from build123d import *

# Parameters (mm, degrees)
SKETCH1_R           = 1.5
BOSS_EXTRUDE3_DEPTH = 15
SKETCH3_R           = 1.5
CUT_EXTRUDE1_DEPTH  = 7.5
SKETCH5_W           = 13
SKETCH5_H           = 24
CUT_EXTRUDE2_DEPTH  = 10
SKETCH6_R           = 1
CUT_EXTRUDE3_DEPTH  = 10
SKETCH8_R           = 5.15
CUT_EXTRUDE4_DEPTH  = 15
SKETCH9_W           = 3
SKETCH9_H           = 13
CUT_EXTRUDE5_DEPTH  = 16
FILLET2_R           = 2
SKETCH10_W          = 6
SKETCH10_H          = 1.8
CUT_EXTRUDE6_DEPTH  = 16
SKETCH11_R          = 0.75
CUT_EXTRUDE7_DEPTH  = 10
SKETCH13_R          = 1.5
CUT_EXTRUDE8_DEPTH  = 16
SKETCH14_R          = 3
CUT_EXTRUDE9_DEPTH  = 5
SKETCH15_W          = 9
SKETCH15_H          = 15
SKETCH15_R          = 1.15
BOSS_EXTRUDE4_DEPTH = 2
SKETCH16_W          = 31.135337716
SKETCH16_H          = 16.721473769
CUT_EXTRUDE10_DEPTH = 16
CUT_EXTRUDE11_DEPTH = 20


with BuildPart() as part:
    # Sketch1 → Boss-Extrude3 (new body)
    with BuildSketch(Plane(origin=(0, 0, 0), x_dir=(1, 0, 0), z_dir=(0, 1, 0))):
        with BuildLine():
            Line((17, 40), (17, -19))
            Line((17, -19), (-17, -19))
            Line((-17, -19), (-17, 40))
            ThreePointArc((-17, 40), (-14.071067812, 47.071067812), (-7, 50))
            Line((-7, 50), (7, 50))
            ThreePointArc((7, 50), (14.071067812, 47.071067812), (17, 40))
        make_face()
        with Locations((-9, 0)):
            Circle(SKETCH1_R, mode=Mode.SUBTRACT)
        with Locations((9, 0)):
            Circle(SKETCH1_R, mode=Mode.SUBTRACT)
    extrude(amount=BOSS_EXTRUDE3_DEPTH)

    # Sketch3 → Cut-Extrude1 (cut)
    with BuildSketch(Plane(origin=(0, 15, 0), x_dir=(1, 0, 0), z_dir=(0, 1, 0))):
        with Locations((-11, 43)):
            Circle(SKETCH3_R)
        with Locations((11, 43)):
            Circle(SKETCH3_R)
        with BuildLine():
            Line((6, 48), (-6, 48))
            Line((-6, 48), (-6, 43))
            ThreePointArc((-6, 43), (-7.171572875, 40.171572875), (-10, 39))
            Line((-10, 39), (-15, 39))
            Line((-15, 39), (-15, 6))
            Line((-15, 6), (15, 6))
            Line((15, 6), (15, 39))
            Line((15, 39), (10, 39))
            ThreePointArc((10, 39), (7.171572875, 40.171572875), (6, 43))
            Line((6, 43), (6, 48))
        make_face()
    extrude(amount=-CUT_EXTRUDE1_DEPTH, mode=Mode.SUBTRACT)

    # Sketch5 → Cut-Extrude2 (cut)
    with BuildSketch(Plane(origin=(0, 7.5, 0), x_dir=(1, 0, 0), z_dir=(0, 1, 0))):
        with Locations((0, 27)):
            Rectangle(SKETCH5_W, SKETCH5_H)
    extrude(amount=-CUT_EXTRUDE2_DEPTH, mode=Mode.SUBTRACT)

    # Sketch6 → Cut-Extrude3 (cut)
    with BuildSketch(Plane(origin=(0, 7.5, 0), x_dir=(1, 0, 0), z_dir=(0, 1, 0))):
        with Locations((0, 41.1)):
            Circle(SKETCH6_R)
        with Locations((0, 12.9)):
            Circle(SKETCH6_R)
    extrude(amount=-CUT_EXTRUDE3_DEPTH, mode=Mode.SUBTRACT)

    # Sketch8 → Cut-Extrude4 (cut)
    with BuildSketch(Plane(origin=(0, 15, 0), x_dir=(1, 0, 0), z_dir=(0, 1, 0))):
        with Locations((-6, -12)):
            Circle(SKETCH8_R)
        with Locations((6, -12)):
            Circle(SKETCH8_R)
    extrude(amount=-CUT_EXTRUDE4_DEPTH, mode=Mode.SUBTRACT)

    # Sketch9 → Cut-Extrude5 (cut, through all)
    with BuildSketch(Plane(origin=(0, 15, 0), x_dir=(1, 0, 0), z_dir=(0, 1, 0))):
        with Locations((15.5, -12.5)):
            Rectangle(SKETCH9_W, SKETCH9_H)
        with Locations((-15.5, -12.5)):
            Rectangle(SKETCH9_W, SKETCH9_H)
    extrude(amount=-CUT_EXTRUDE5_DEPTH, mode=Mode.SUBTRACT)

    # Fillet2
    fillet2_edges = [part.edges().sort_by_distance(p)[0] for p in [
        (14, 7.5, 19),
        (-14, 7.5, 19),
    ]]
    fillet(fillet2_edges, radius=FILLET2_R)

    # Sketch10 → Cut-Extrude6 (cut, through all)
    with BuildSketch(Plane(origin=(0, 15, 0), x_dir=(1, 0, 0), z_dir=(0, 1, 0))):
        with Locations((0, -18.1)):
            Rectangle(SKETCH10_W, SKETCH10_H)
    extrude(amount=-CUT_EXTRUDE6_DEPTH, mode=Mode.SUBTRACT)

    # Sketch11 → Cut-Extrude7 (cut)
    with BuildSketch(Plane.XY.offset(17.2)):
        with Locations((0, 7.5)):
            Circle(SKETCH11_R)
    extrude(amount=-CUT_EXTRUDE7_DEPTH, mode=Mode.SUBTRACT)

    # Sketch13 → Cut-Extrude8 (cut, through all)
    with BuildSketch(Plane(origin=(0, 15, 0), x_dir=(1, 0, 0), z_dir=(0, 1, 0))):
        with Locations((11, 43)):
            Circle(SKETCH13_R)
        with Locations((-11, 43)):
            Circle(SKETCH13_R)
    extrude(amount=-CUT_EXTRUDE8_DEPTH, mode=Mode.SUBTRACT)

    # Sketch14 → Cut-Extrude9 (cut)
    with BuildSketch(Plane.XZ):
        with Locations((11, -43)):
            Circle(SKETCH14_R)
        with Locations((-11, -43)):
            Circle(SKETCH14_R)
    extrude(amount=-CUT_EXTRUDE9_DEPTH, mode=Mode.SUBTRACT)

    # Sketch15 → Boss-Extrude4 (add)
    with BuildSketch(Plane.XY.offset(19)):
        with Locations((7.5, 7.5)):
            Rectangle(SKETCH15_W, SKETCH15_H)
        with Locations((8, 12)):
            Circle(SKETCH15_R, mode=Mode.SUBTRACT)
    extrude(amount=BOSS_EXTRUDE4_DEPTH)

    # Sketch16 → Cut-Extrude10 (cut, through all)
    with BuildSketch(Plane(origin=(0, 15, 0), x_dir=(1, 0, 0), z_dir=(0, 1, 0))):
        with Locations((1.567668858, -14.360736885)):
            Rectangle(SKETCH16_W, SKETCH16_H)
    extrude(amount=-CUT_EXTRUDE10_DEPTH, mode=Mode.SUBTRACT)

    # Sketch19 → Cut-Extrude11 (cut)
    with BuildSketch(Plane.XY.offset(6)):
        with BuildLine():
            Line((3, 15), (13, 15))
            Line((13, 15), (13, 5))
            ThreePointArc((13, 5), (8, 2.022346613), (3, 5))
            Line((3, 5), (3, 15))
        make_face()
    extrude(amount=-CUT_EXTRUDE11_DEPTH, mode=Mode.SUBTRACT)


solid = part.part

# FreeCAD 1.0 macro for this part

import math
import FreeCAD as App
import Part
import Sketcher
Q = App.Units.Quantity


def edges_at(feature, points):
    """Names of the edges that pass closest to the given points."""
    edges = feature.Shape.Edges
    near = lambda p: min(range(len(edges)), key=lambda i: edges[i].distToShape(Part.Vertex(*p))[0])
    return sorted({f"Edge{near(p) + 1}" for p in points})


def add_polygon(sketch, points):
    """Adds a closed chain of lines whose ends are joined by coincident constraints."""
    first, n = sketch.GeometryCount, len(points)
    for a, b in zip(points, points[1:] + points[:1]):
        sketch.addGeometry(Part.LineSegment(App.Vector(*a, 0), App.Vector(*b, 0)), False)
    for i in range(n):
        sketch.addConstraint(Sketcher.Constraint("Coincident", first + i, 2, first + (i + 1) % n, 1))

doc = App.newDocument("Part")
body = doc.addObject("PartDesign::Body", "Body")

# Sketch on XZ plane
sketch1 = body.newObject("Sketcher::SketchObject", "Sketch")
sketch1.AttachmentSupport = (doc.getObject("XZ_Plane"), [""])
sketch1.MapMode = "FlatFace"
sketch1.addGeometry(Part.LineSegment(App.Vector(17, 19, 0), App.Vector(17, -40, 0)), False)
sketch1.addGeometry(Part.ArcOfCircle(Part.Circle(App.Vector(7, -40, 0), App.Vector(0, 0, 1), 10), math.radians(-90), math.radians(0)), False)
sketch1.addGeometry(Part.LineSegment(App.Vector(7, -50, 0), App.Vector(-7, -50, 0)), False)
sketch1.addGeometry(Part.ArcOfCircle(Part.Circle(App.Vector(-7, -40, 0), App.Vector(0, 0, 1), 10), math.radians(180), math.radians(270)), False)
sketch1.addGeometry(Part.LineSegment(App.Vector(-17, -40, 0), App.Vector(-17, 19, 0)), False)
sketch1.addGeometry(Part.LineSegment(App.Vector(-17, 19, 0), App.Vector(17, 19, 0)), False)
sketch1.addGeometry(Part.Circle(App.Vector(9, 0, 0), App.Vector(0, 0, 1), 1.5), False)
sketch1.addGeometry(Part.Circle(App.Vector(-9, 0, 0), App.Vector(0, 0, 1), 1.5), False)
sketch1.addConstraint(Sketcher.Constraint("Tangent", 0, 2, 1, 2))
sketch1.addConstraint(Sketcher.Constraint("Tangent", 1, 1, 2, 1))
sketch1.addConstraint(Sketcher.Constraint("Tangent", 2, 2, 3, 2))
sketch1.addConstraint(Sketcher.Constraint("Tangent", 3, 1, 4, 1))
sketch1.addConstraint(Sketcher.Constraint("Coincident", 4, 2, 5, 1))
sketch1.addConstraint(Sketcher.Constraint("Coincident", 5, 2, 0, 1))
sketch1.addConstraint(Sketcher.Constraint("Vertical", 0))
sketch1.addConstraint(Sketcher.Constraint("Horizontal", 2))
sketch1.addConstraint(Sketcher.Constraint("Vertical", 4))
sketch1.addConstraint(Sketcher.Constraint("Horizontal", 5))
sketch1.addConstraint(Sketcher.Constraint("Equal", 1, 3))
sketch1.addConstraint(Sketcher.Constraint("Equal", 6, 7))
sketch1.addConstraint(Sketcher.Constraint("Symmetric", 6, 3, 7, 3, -1, 1))
sketch1.addConstraint(Sketcher.Constraint("PointOnObject", 6, 3, -1))
sketch1.addConstraint(Sketcher.Constraint("Diameter", 6, Q("3 mm")))
sketch1.addConstraint(Sketcher.Constraint("Radius", 1, Q("10 mm")))
sketch1.addConstraint(Sketcher.Constraint("DistanceX", 2, 2, 2, 1, Q("14 mm")))
sketch1.addConstraint(Sketcher.Constraint("DistanceY", 0, 2, 0, 1, Q("59 mm")))
sketch1.addConstraint(Sketcher.Constraint("DistanceX", -1, 1, 1, 3, Q("7 mm")))
sketch1.addConstraint(Sketcher.Constraint("DistanceY", 1, 3, -1, 1, Q("40 mm")))
sketch1.addConstraint(Sketcher.Constraint("DistanceX", -1, 1, 6, 3, Q("9 mm")))
pad1 = body.newObject("PartDesign::Pad", "Pad")
pad1.Profile = sketch1
pad1.Length = 15
pad1.Reversed = True

# Sketch on XZ plane
sketch2 = body.newObject("Sketcher::SketchObject", "Sketch001")
sketch2.AttachmentSupport = (doc.getObject("XZ_Plane"), [""])
sketch2.MapMode = "FlatFace"
sketch2.AttachmentOffset = App.Placement(App.Vector(0, 0, -15), App.Rotation())
sketch2.addGeometry(Part.Circle(App.Vector(-11, -43, 0), App.Vector(0, 0, 1), 1.5), False)
sketch2.addGeometry(Part.Circle(App.Vector(11, -43, 0), App.Vector(0, 0, 1), 1.5), False)
sketch2.addGeometry(Part.LineSegment(App.Vector(6, -48, 0), App.Vector(-6, -48, 0)), False)
sketch2.addGeometry(Part.LineSegment(App.Vector(-6, -48, 0), App.Vector(-6, -43, 0)), False)
sketch2.addGeometry(Part.ArcOfCircle(Part.Circle(App.Vector(-10, -43, 0), App.Vector(0, 0, 1), 4), math.radians(0), math.radians(90)), False)
sketch2.addGeometry(Part.LineSegment(App.Vector(-10, -39, 0), App.Vector(-15, -39, 0)), False)
sketch2.addGeometry(Part.LineSegment(App.Vector(-15, -39, 0), App.Vector(-15, -6, 0)), False)
sketch2.addGeometry(Part.LineSegment(App.Vector(-15, -6, 0), App.Vector(15, -6, 0)), False)
sketch2.addGeometry(Part.LineSegment(App.Vector(15, -6, 0), App.Vector(15, -39, 0)), False)
sketch2.addGeometry(Part.LineSegment(App.Vector(15, -39, 0), App.Vector(10, -39, 0)), False)
sketch2.addGeometry(Part.ArcOfCircle(Part.Circle(App.Vector(10, -43, 0), App.Vector(0, 0, 1), 4), math.radians(90), math.radians(180)), False)
sketch2.addGeometry(Part.LineSegment(App.Vector(6, -43, 0), App.Vector(6, -48, 0)), False)
sketch2.addConstraint(Sketcher.Constraint("Coincident", 2, 2, 3, 1))
sketch2.addConstraint(Sketcher.Constraint("Tangent", 3, 2, 4, 1))
sketch2.addConstraint(Sketcher.Constraint("Tangent", 4, 2, 5, 1))
sketch2.addConstraint(Sketcher.Constraint("Coincident", 5, 2, 6, 1))
sketch2.addConstraint(Sketcher.Constraint("Coincident", 6, 2, 7, 1))
sketch2.addConstraint(Sketcher.Constraint("Coincident", 7, 2, 8, 1))
sketch2.addConstraint(Sketcher.Constraint("Coincident", 8, 2, 9, 1))
sketch2.addConstraint(Sketcher.Constraint("Tangent", 9, 2, 10, 1))
sketch2.addConstraint(Sketcher.Constraint("Tangent", 10, 2, 11, 1))
sketch2.addConstraint(Sketcher.Constraint("Coincident", 11, 2, 2, 1))
sketch2.addConstraint(Sketcher.Constraint("Horizontal", 2))
sketch2.addConstraint(Sketcher.Constraint("Vertical", 3))
sketch2.addConstraint(Sketcher.Constraint("Horizontal", 5))
sketch2.addConstraint(Sketcher.Constraint("Vertical", 6))
sketch2.addConstraint(Sketcher.Constraint("Horizontal", 7))
sketch2.addConstraint(Sketcher.Constraint("Vertical", 8))
sketch2.addConstraint(Sketcher.Constraint("Horizontal", 9))
sketch2.addConstraint(Sketcher.Constraint("Vertical", 11))
sketch2.addConstraint(Sketcher.Constraint("Equal", 0, 1))
sketch2.addConstraint(Sketcher.Constraint("Equal", 4, 10))
sketch2.addConstraint(Sketcher.Constraint("Symmetric", 0, 3, 1, 3, -2))
sketch2.addConstraint(Sketcher.Constraint("Symmetric", 4, 3, 10, 3, -2))
sketch2.addConstraint(Sketcher.Constraint("Horizontal", 1, 3, 4, 3))
sketch2.addConstraint(Sketcher.Constraint("Equal", 5, 9))
sketch2.addConstraint(Sketcher.Constraint("Equal", 9, 3))
sketch2.addConstraint(Sketcher.Constraint("Diameter", 0, Q("3 mm")))
sketch2.addConstraint(Sketcher.Constraint("Radius", 4, Q("4 mm")))
sketch2.addConstraint(Sketcher.Constraint("DistanceX", 2, 2, 2, 1, Q("12 mm")))
sketch2.addConstraint(Sketcher.Constraint("DistanceX", 5, 2, 5, 1, Q("5 mm")))
sketch2.addConstraint(Sketcher.Constraint("DistanceY", 6, 1, 6, 2, Q("33 mm")))
sketch2.addConstraint(Sketcher.Constraint("DistanceX", 0, 3, -1, 1, Q("11 mm")))
sketch2.addConstraint(Sketcher.Constraint("DistanceY", 0, 3, -1, 1, Q("43 mm")))
pocket1 = body.newObject("PartDesign::Pocket", "Pocket")
pocket1.Profile = sketch2
pocket1.Length = 7.5
pocket1.Reversed = True

# Sketch on XZ plane
sketch3 = body.newObject("Sketcher::SketchObject", "Sketch002")
sketch3.AttachmentSupport = (doc.getObject("XZ_Plane"), [""])
sketch3.MapMode = "FlatFace"
sketch3.AttachmentOffset = App.Placement(App.Vector(0, 0, -7.5), App.Rotation())
add_polygon(sketch3, [(-6.5, -39), (-6.5, -15), (6.5, -15), (6.5, -39)])  # lines 0-3
sketch3.addConstraint(Sketcher.Constraint("Vertical", 0))
sketch3.addConstraint(Sketcher.Constraint("Horizontal", 1))
sketch3.addConstraint(Sketcher.Constraint("Vertical", 2))
sketch3.addConstraint(Sketcher.Constraint("Horizontal", 3))
sketch3.addConstraint(Sketcher.Constraint("DistanceX", 1, 1, 1, 2, Q("13 mm")))
sketch3.addConstraint(Sketcher.Constraint("DistanceY", 0, 1, 0, 2, Q("24 mm")))
sketch3.addConstraint(Sketcher.Constraint("DistanceY", 0, 2, -1, 1, Q("15 mm")))
sketch3.addConstraint(Sketcher.Constraint("DistanceX", 0, 2, -1, 1, Q("6.5 mm")))
pocket2 = body.newObject("PartDesign::Pocket", "Pocket001")
pocket2.Profile = sketch3
pocket2.Length = 10
pocket2.Reversed = True

# Sketch on XZ plane
sketch4 = body.newObject("Sketcher::SketchObject", "Sketch003")
sketch4.AttachmentSupport = (doc.getObject("XZ_Plane"), [""])
sketch4.MapMode = "FlatFace"
sketch4.AttachmentOffset = App.Placement(App.Vector(0, 0, -7.5), App.Rotation())
sketch4.addGeometry(Part.Circle(App.Vector(0, -41.1, 0), App.Vector(0, 0, 1), 1), False)
sketch4.addGeometry(Part.Circle(App.Vector(0, -12.9, 0), App.Vector(0, 0, 1), 1), False)
sketch4.addConstraint(Sketcher.Constraint("Equal", 0, 1))
sketch4.addConstraint(Sketcher.Constraint("PointOnObject", 0, 3, -2))
sketch4.addConstraint(Sketcher.Constraint("PointOnObject", 1, 3, -2))
sketch4.addConstraint(Sketcher.Constraint("Diameter", 0, Q("2 mm")))
sketch4.addConstraint(Sketcher.Constraint("DistanceY", 0, 3, -1, 1, Q("41.1 mm")))
sketch4.addConstraint(Sketcher.Constraint("DistanceY", 1, 3, -1, 1, Q("12.9 mm")))
pocket3 = body.newObject("PartDesign::Pocket", "Pocket002")
pocket3.Profile = sketch4
pocket3.Length = 10
pocket3.Reversed = True

# Sketch on XZ plane
sketch5 = body.newObject("Sketcher::SketchObject", "Sketch004")
sketch5.AttachmentSupport = (doc.getObject("XZ_Plane"), [""])
sketch5.MapMode = "FlatFace"
sketch5.AttachmentOffset = App.Placement(App.Vector(0, 0, -15), App.Rotation())
sketch5.addGeometry(Part.Circle(App.Vector(-6, 12, 0), App.Vector(0, 0, 1), 5.15), False)
sketch5.addGeometry(Part.Circle(App.Vector(6, 12, 0), App.Vector(0, 0, 1), 5.15), False)
sketch5.addConstraint(Sketcher.Constraint("Equal", 0, 1))
sketch5.addConstraint(Sketcher.Constraint("Symmetric", 0, 3, 1, 3, -2))
sketch5.addConstraint(Sketcher.Constraint("Diameter", 0, Q("10.3 mm")))
sketch5.addConstraint(Sketcher.Constraint("DistanceX", 0, 3, -1, 1, Q("6 mm")))
sketch5.addConstraint(Sketcher.Constraint("DistanceY", -1, 1, 0, 3, Q("12 mm")))
pocket4 = body.newObject("PartDesign::Pocket", "Pocket003")
pocket4.Profile = sketch5
pocket4.Length = 15
pocket4.Reversed = True

# Sketch on XZ plane
sketch6 = body.newObject("Sketcher::SketchObject", "Sketch005")
sketch6.AttachmentSupport = (doc.getObject("XZ_Plane"), [""])
sketch6.MapMode = "FlatFace"
sketch6.AttachmentOffset = App.Placement(App.Vector(0, 0, -15), App.Rotation())
add_polygon(sketch6, [(14, 6), (14, 19), (17, 19), (17, 6)])  # lines 0-3
add_polygon(sketch6, [(-17, 6), (-17, 19), (-14, 19), (-14, 6)])  # lines 4-7
sketch6.addConstraint(Sketcher.Constraint("Vertical", 0))
sketch6.addConstraint(Sketcher.Constraint("Horizontal", 1))
sketch6.addConstraint(Sketcher.Constraint("Vertical", 2))
sketch6.addConstraint(Sketcher.Constraint("Horizontal", 3))
sketch6.addConstraint(Sketcher.Constraint("Vertical", 4))
sketch6.addConstraint(Sketcher.Constraint("Horizontal", 5))
sketch6.addConstraint(Sketcher.Constraint("Vertical", 6))
sketch6.addConstraint(Sketcher.Constraint("Horizontal", 7))
sketch6.addConstraint(Sketcher.Constraint("Symmetric", 1, 2, 4, 2, -2))
sketch6.addConstraint(Sketcher.Constraint("Symmetric", 3, 2, 6, 2, -2))
sketch6.addConstraint(Sketcher.Constraint("DistanceX", 1, 1, 1, 2, Q("3 mm")))
sketch6.addConstraint(Sketcher.Constraint("DistanceY", 0, 1, 0, 2, Q("13 mm")))
sketch6.addConstraint(Sketcher.Constraint("DistanceX", -1, 1, 0, 2, Q("14 mm")))
sketch6.addConstraint(Sketcher.Constraint("DistanceY", -1, 1, 0, 2, Q("19 mm")))
pocket5 = body.newObject("PartDesign::Pocket", "Pocket004")
pocket5.Profile = sketch6
pocket5.Type = "ThroughAll"
pocket5.Reversed = True
doc.recompute()

fillet = body.newObject("PartDesign::Fillet", "Fillet")
fillet.Base = (pocket5, edges_at(pocket5, [(14, 7.5, 19), (-14, 7.5, 19)]))
fillet.Radius = 2

# Sketch on XZ plane
sketch7 = body.newObject("Sketcher::SketchObject", "Sketch006")
sketch7.AttachmentSupport = (doc.getObject("XZ_Plane"), [""])
sketch7.MapMode = "FlatFace"
sketch7.AttachmentOffset = App.Placement(App.Vector(0, 0, -15), App.Rotation())
add_polygon(sketch7, [(-3, 17.2), (-3, 19), (3, 19), (3, 17.2)])  # lines 0-3
sketch7.addConstraint(Sketcher.Constraint("Vertical", 0))
sketch7.addConstraint(Sketcher.Constraint("Horizontal", 1))
sketch7.addConstraint(Sketcher.Constraint("Vertical", 2))
sketch7.addConstraint(Sketcher.Constraint("Horizontal", 3))
sketch7.addConstraint(Sketcher.Constraint("DistanceX", 1, 1, 1, 2, Q("6 mm")))
sketch7.addConstraint(Sketcher.Constraint("DistanceY", 0, 1, 0, 2, Q("1.8 mm")))
sketch7.addConstraint(Sketcher.Constraint("DistanceX", 0, 2, -1, 1, Q("3 mm")))
sketch7.addConstraint(Sketcher.Constraint("DistanceY", -1, 1, 0, 2, Q("19 mm")))
pocket6 = body.newObject("PartDesign::Pocket", "Pocket005")
pocket6.Profile = sketch7
pocket6.Type = "ThroughAll"
pocket6.Reversed = True

# Sketch on XY plane
sketch8 = body.newObject("Sketcher::SketchObject", "Sketch007")
sketch8.AttachmentSupport = (doc.getObject("XY_Plane"), [""])
sketch8.MapMode = "FlatFace"
sketch8.AttachmentOffset = App.Placement(App.Vector(0, 0, 17.2), App.Rotation())
sketch8.addGeometry(Part.Circle(App.Vector(0, 7.5, 0), App.Vector(0, 0, 1), 0.75), False)
sketch8.addConstraint(Sketcher.Constraint("PointOnObject", 0, 3, -2))
sketch8.addConstraint(Sketcher.Constraint("Diameter", 0, Q("1.5 mm")))
sketch8.addConstraint(Sketcher.Constraint("DistanceY", -1, 1, 0, 3, Q("7.5 mm")))
pocket7 = body.newObject("PartDesign::Pocket", "Pocket006")
pocket7.Profile = sketch8
pocket7.Length = 10

# Sketch on XZ plane
sketch9 = body.newObject("Sketcher::SketchObject", "Sketch008")
sketch9.AttachmentSupport = (doc.getObject("XZ_Plane"), [""])
sketch9.MapMode = "FlatFace"
sketch9.AttachmentOffset = App.Placement(App.Vector(0, 0, -15), App.Rotation())
sketch9.addGeometry(Part.Circle(App.Vector(11, -43, 0), App.Vector(0, 0, 1), 1.5), False)
sketch9.addGeometry(Part.Circle(App.Vector(-11, -43, 0), App.Vector(0, 0, 1), 1.5), False)
sketch9.addConstraint(Sketcher.Constraint("Equal", 0, 1))
sketch9.addConstraint(Sketcher.Constraint("Symmetric", 0, 3, 1, 3, -2))
sketch9.addConstraint(Sketcher.Constraint("Diameter", 0, Q("3 mm")))
sketch9.addConstraint(Sketcher.Constraint("DistanceX", -1, 1, 0, 3, Q("11 mm")))
sketch9.addConstraint(Sketcher.Constraint("DistanceY", 0, 3, -1, 1, Q("43 mm")))
pocket8 = body.newObject("PartDesign::Pocket", "Pocket007")
pocket8.Profile = sketch9
pocket8.Type = "ThroughAll"
pocket8.Reversed = True

# Sketch on XZ plane
sketch10 = body.newObject("Sketcher::SketchObject", "Sketch009")
sketch10.AttachmentSupport = (doc.getObject("XZ_Plane"), [""])
sketch10.MapMode = "FlatFace"
sketch10.addGeometry(Part.Circle(App.Vector(11, -43, 0), App.Vector(0, 0, 1), 3), False)
sketch10.addGeometry(Part.Circle(App.Vector(-11, -43, 0), App.Vector(0, 0, 1), 3), False)
sketch10.addConstraint(Sketcher.Constraint("Equal", 0, 1))
sketch10.addConstraint(Sketcher.Constraint("Symmetric", 0, 3, 1, 3, -2))
sketch10.addConstraint(Sketcher.Constraint("Diameter", 0, Q("6 mm")))
sketch10.addConstraint(Sketcher.Constraint("DistanceX", -1, 1, 0, 3, Q("11 mm")))
sketch10.addConstraint(Sketcher.Constraint("DistanceY", 0, 3, -1, 1, Q("43 mm")))
pocket9 = body.newObject("PartDesign::Pocket", "Pocket008")
pocket9.Profile = sketch10
pocket9.Length = 5

# Sketch on XY plane
sketch11 = body.newObject("Sketcher::SketchObject", "Sketch010")
sketch11.AttachmentSupport = (doc.getObject("XY_Plane"), [""])
sketch11.MapMode = "FlatFace"
sketch11.AttachmentOffset = App.Placement(App.Vector(0, 0, 19), App.Rotation())
add_polygon(sketch11, [(3, 15), (3, 0), (12, 0), (12, 15)])  # lines 0-3
sketch11.addGeometry(Part.Circle(App.Vector(8, 12, 0), App.Vector(0, 0, 1), 1.15), False)  # 4
sketch11.addConstraint(Sketcher.Constraint("Vertical", 0))
sketch11.addConstraint(Sketcher.Constraint("Horizontal", 1))
sketch11.addConstraint(Sketcher.Constraint("Vertical", 2))
sketch11.addConstraint(Sketcher.Constraint("Horizontal", 3))
sketch11.addConstraint(Sketcher.Constraint("PointOnObject", 0, 2, -1))
sketch11.addConstraint(Sketcher.Constraint("Diameter", 4, Q("2.3 mm")))
sketch11.addConstraint(Sketcher.Constraint("DistanceX", 1, 1, 1, 2, Q("9 mm")))
sketch11.addConstraint(Sketcher.Constraint("DistanceY", 0, 2, 0, 1, Q("15 mm")))
sketch11.addConstraint(Sketcher.Constraint("DistanceX", -1, 1, 4, 3, Q("8 mm")))
sketch11.addConstraint(Sketcher.Constraint("DistanceY", -1, 1, 4, 3, Q("12 mm")))
sketch11.addConstraint(Sketcher.Constraint("DistanceX", -1, 1, 0, 2, Q("3 mm")))
pad2 = body.newObject("PartDesign::Pad", "Pad001")
pad2.Profile = sketch11
pad2.Length = 2

# Sketch on XZ plane
sketch12 = body.newObject("Sketcher::SketchObject", "Sketch011")
sketch12.AttachmentSupport = (doc.getObject("XZ_Plane"), [""])
sketch12.MapMode = "FlatFace"
sketch12.AttachmentOffset = App.Placement(App.Vector(0, 0, -15), App.Rotation())
add_polygon(sketch12, [(-14, 6), (-14, 22.721474), (17.135338, 22.721474), (17.135338, 6)])  # lines 0-3
sketch12.addConstraint(Sketcher.Constraint("Vertical", 0))
sketch12.addConstraint(Sketcher.Constraint("Horizontal", 1))
sketch12.addConstraint(Sketcher.Constraint("Vertical", 2))
sketch12.addConstraint(Sketcher.Constraint("Horizontal", 3))
sketch12.addConstraint(Sketcher.Constraint("DistanceX", 0, 2, -1, 1, Q("14 mm")))
sketch12.addConstraint(Sketcher.Constraint("DistanceY", -1, 1, 2, 2, Q("6 mm")))
sketch12.addConstraint(Sketcher.Constraint("DistanceX", 1, 1, 1, 2, Q("31.135338 mm")))
sketch12.addConstraint(Sketcher.Constraint("DistanceY", 0, 1, 0, 2, Q("16.721474 mm")))
pocket10 = body.newObject("PartDesign::Pocket", "Pocket009")
pocket10.Profile = sketch12
pocket10.Type = "ThroughAll"
pocket10.Reversed = True

# Sketch on XY plane
sketch13 = body.newObject("Sketcher::SketchObject", "Sketch012")
sketch13.AttachmentSupport = (doc.getObject("XY_Plane"), [""])
sketch13.MapMode = "FlatFace"
sketch13.AttachmentOffset = App.Placement(App.Vector(0, 0, 6), App.Rotation())
sketch13.addGeometry(Part.LineSegment(App.Vector(13, 15, 0), App.Vector(3, 15, 0)), False)
sketch13.addGeometry(Part.LineSegment(App.Vector(3, 15, 0), App.Vector(3, 5, 0)), False)
sketch13.addGeometry(Part.ArcOfCircle(Part.Circle(App.Vector(8, 7.70911, 0), App.Vector(0, 0, 1), 5.686763), math.radians(-151.550192), math.radians(-28.449808)), False)
sketch13.addGeometry(Part.LineSegment(App.Vector(13, 5, 0), App.Vector(13, 15, 0)), False)
sketch13.addConstraint(Sketcher.Constraint("Coincident", 0, 2, 1, 1))
sketch13.addConstraint(Sketcher.Constraint("Coincident", 1, 2, 2, 1))
sketch13.addConstraint(Sketcher.Constraint("Coincident", 2, 2, 3, 1))
sketch13.addConstraint(Sketcher.Constraint("Coincident", 3, 2, 0, 1))
sketch13.addConstraint(Sketcher.Constraint("Horizontal", 0))
sketch13.addConstraint(Sketcher.Constraint("Vertical", 1))
sketch13.addConstraint(Sketcher.Constraint("Vertical", 3))
sketch13.addConstraint(Sketcher.Constraint("Horizontal", 1, 2, 2, 2))
sketch13.addConstraint(Sketcher.Constraint("Equal", 0, 1))
sketch13.addConstraint(Sketcher.Constraint("DistanceX", 0, 2, 0, 1, Q("10 mm")))
sketch13.addConstraint(Sketcher.Constraint("DistanceX", -1, 1, 2, 3, Q("8 mm")))
sketch13.addConstraint(Sketcher.Constraint("DistanceY", -1, 1, 0, 2, Q("15 mm")))
sketch13.addConstraint(Sketcher.Constraint("Radius", 2, Q("5.686763 mm")))
pocket11 = body.newObject("PartDesign::Pocket", "Pocket010")
pocket11.Profile = sketch13
pocket11.Length = 20

doc.recompute()
